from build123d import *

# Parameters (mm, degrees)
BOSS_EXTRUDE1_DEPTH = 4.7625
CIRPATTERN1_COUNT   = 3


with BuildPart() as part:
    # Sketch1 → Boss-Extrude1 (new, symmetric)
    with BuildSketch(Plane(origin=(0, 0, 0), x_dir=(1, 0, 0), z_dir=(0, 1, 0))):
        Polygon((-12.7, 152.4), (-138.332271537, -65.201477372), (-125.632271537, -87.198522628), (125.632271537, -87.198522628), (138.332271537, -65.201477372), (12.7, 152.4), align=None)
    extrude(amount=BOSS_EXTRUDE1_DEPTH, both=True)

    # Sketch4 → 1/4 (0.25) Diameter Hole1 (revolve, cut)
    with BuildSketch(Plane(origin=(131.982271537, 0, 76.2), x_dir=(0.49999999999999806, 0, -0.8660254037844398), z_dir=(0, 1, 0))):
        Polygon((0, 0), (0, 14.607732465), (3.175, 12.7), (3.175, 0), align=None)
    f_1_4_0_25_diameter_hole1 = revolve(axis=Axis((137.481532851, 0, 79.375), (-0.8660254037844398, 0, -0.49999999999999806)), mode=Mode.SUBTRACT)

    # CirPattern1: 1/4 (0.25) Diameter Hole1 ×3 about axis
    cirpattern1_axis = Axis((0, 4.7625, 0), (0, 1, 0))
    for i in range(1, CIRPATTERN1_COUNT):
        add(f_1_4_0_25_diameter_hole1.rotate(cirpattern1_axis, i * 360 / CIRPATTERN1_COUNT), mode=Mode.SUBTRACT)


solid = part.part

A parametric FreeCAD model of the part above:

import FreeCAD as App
import Part
import Sketcher
Q = App.Units.Quantity


def add_polygon(sketch, points):
    """Adds a closed chain of lines whose ends are joined by coincident constraints."""
    first, n = sketch.GeometryCount, len(points)
    for a, b in zip(points, points[1:] + points[:1]):
        sketch.addGeometry(Part.LineSegment(App.Vector(*a, 0), App.Vector(*b, 0)), False)
    for i in range(n):
        sketch.addConstraint(Sketcher.Constraint("Coincident", first + i, 2, first + (i + 1) % n, 1))

doc = App.newDocument("Part")
params = doc.addObject("Spreadsheet::Sheet", "Params")
for row, (alias, value) in enumerate([
    ("sketch1_width", "1 in"),
    ("sketch1_length", "1 in"),
    ("pad1_length", "0.375 in"),
    ("sketch2_length", "0.5 in"),
    ("sketch2_length2", "0.125 in"),
    ("groove_angle", "360 deg"),
], start=1):
    params.set(f"A{row}", alias)
    params.set(f"B{row}", "=" + value)
    params.setAlias(f"B{row}", alias)

body = doc.addObject("PartDesign::Body", "Body")

# Sketch on XZ plane
sketch1 = body.newObject("Sketcher::SketchObject", "Sketch")
sketch1.AttachmentSupport = (doc.getObject("XZ_Plane"), [""])
sketch1.MapMode = "FlatFace"
add_polygon(sketch1, [(-13, -152), (-138, 65), (-126, 87), (126, 87), (138, 65), (13, -152)])  # lines 0-5
sketch1.addConstraint(Sketcher.Constraint("Horizontal", 2))
sketch1.addConstraint(Sketcher.Constraint("Horizontal", 5))
sketch1.addConstraint(Sketcher.Constraint("Symmetric", 0, 2, 3, 2, -2))
sketch1.addConstraint(Sketcher.Constraint("Parallel", 0, 3))
sketch1.addConstraint(Sketcher.Constraint("Parallel", 1, 4))
sketch1.addConstraint(Sketcher.Constraint("Equal", 1, 3))
sketch1.addConstraint(Sketcher.Constraint("DistanceX", 5, 2, 5, 1, Q("1 in")))
sketch1.addConstraint(Sketcher.Constraint("Distance", 1, Q("1 in")))
sketch1.addConstraint(Sketcher.Constraint("DistanceY", 4, 2, -1, 1, Q("6 in")))
sketch1.addConstraint(Sketcher.Constraint("Angle", 0, Q("120 deg")))
sketch1.addConstraint(Sketcher.Constraint("DistanceX", 2, 1, 2, 2, Q("251.264543 mm")))
sketch1.setExpression("Constraints[12]", "Params.sketch1_width")
sketch1.setExpression("Constraints[13]", "Params.sketch1_length")
pad1 = body.newObject("PartDesign::Pad", "Pad")
pad1.Profile = sketch1
pad1.setExpression("Length", "Params.pad1_length")
pad1.Midplane = True

# Sketch on XZ plane
sketch2 = body.newObject("Sketcher::SketchObject", "Sketch001")
sketch2.AttachmentSupport = (doc.getObject("XZ_Plane"), [""])
sketch2.MapMode = "FlatFace"
add_polygon(sketch2, [(119.3, 68.9), (132, 76.2), (133.6, 73.5), (122.6, 67.1)])  # lines 0-3
sketch2.addGeometry(Part.LineSegment(App.Vector(132, 76.2, 0), App.Vector(119.3, 68.9, 0)), True)  # axis
sketch2.addConstraint(Sketcher.Constraint("Coincident", 4, 1, 0, 2))
sketch2.addConstraint(Sketcher.Constraint("Coincident", 4, 2, 3, 2))
sketch2.addConstraint(Sketcher.Constraint("Perpendicular", 0, 1))
sketch2.addConstraint(Sketcher.Constraint("Perpendicular", 1, 2))
sketch2.addConstraint(Sketcher.Constraint("DistanceY", -1, 1, 0, 2, Q("3 in")))
sketch2.addConstraint(Sketcher.Constraint("Angle", 0, Q("30 deg")))
sketch2.addConstraint(Sketcher.Constraint("Angle", 3, Q("151 deg")))
sketch2.addConstraint(Sketcher.Constraint("Distance", 2, Q("0.5 in")))
sketch2.addConstraint(Sketcher.Constraint("Distance", 1, Q("0.125 in")))
sketch2.addConstraint(Sketcher.Constraint("DistanceX", -1, 1, 0, 2, Q("131.982272 mm")))
sketch2.setExpression("Constraints[11]", "Params.sketch2_length")
sketch2.setExpression("Constraints[12]", "Params.sketch2_length2")
groove = body.newObject("PartDesign::Groove", "Groove")
groove.Profile = sketch2
groove.ReferenceAxis = (sketch2, ["Axis0"])
groove.setExpression("Angle", "Params.groove_angle")
doc.recompute()

polarpattern = body.newObject("PartDesign::PolarPattern", "PolarPattern")
polarpattern.Originals = [groove]
polarpattern.Axis = (doc.getObject("Y_Axis"), [""])
polarpattern.Angle = 360
polarpattern.Occurrences = 3
body.Tip = polarpattern

doc.recompute()
